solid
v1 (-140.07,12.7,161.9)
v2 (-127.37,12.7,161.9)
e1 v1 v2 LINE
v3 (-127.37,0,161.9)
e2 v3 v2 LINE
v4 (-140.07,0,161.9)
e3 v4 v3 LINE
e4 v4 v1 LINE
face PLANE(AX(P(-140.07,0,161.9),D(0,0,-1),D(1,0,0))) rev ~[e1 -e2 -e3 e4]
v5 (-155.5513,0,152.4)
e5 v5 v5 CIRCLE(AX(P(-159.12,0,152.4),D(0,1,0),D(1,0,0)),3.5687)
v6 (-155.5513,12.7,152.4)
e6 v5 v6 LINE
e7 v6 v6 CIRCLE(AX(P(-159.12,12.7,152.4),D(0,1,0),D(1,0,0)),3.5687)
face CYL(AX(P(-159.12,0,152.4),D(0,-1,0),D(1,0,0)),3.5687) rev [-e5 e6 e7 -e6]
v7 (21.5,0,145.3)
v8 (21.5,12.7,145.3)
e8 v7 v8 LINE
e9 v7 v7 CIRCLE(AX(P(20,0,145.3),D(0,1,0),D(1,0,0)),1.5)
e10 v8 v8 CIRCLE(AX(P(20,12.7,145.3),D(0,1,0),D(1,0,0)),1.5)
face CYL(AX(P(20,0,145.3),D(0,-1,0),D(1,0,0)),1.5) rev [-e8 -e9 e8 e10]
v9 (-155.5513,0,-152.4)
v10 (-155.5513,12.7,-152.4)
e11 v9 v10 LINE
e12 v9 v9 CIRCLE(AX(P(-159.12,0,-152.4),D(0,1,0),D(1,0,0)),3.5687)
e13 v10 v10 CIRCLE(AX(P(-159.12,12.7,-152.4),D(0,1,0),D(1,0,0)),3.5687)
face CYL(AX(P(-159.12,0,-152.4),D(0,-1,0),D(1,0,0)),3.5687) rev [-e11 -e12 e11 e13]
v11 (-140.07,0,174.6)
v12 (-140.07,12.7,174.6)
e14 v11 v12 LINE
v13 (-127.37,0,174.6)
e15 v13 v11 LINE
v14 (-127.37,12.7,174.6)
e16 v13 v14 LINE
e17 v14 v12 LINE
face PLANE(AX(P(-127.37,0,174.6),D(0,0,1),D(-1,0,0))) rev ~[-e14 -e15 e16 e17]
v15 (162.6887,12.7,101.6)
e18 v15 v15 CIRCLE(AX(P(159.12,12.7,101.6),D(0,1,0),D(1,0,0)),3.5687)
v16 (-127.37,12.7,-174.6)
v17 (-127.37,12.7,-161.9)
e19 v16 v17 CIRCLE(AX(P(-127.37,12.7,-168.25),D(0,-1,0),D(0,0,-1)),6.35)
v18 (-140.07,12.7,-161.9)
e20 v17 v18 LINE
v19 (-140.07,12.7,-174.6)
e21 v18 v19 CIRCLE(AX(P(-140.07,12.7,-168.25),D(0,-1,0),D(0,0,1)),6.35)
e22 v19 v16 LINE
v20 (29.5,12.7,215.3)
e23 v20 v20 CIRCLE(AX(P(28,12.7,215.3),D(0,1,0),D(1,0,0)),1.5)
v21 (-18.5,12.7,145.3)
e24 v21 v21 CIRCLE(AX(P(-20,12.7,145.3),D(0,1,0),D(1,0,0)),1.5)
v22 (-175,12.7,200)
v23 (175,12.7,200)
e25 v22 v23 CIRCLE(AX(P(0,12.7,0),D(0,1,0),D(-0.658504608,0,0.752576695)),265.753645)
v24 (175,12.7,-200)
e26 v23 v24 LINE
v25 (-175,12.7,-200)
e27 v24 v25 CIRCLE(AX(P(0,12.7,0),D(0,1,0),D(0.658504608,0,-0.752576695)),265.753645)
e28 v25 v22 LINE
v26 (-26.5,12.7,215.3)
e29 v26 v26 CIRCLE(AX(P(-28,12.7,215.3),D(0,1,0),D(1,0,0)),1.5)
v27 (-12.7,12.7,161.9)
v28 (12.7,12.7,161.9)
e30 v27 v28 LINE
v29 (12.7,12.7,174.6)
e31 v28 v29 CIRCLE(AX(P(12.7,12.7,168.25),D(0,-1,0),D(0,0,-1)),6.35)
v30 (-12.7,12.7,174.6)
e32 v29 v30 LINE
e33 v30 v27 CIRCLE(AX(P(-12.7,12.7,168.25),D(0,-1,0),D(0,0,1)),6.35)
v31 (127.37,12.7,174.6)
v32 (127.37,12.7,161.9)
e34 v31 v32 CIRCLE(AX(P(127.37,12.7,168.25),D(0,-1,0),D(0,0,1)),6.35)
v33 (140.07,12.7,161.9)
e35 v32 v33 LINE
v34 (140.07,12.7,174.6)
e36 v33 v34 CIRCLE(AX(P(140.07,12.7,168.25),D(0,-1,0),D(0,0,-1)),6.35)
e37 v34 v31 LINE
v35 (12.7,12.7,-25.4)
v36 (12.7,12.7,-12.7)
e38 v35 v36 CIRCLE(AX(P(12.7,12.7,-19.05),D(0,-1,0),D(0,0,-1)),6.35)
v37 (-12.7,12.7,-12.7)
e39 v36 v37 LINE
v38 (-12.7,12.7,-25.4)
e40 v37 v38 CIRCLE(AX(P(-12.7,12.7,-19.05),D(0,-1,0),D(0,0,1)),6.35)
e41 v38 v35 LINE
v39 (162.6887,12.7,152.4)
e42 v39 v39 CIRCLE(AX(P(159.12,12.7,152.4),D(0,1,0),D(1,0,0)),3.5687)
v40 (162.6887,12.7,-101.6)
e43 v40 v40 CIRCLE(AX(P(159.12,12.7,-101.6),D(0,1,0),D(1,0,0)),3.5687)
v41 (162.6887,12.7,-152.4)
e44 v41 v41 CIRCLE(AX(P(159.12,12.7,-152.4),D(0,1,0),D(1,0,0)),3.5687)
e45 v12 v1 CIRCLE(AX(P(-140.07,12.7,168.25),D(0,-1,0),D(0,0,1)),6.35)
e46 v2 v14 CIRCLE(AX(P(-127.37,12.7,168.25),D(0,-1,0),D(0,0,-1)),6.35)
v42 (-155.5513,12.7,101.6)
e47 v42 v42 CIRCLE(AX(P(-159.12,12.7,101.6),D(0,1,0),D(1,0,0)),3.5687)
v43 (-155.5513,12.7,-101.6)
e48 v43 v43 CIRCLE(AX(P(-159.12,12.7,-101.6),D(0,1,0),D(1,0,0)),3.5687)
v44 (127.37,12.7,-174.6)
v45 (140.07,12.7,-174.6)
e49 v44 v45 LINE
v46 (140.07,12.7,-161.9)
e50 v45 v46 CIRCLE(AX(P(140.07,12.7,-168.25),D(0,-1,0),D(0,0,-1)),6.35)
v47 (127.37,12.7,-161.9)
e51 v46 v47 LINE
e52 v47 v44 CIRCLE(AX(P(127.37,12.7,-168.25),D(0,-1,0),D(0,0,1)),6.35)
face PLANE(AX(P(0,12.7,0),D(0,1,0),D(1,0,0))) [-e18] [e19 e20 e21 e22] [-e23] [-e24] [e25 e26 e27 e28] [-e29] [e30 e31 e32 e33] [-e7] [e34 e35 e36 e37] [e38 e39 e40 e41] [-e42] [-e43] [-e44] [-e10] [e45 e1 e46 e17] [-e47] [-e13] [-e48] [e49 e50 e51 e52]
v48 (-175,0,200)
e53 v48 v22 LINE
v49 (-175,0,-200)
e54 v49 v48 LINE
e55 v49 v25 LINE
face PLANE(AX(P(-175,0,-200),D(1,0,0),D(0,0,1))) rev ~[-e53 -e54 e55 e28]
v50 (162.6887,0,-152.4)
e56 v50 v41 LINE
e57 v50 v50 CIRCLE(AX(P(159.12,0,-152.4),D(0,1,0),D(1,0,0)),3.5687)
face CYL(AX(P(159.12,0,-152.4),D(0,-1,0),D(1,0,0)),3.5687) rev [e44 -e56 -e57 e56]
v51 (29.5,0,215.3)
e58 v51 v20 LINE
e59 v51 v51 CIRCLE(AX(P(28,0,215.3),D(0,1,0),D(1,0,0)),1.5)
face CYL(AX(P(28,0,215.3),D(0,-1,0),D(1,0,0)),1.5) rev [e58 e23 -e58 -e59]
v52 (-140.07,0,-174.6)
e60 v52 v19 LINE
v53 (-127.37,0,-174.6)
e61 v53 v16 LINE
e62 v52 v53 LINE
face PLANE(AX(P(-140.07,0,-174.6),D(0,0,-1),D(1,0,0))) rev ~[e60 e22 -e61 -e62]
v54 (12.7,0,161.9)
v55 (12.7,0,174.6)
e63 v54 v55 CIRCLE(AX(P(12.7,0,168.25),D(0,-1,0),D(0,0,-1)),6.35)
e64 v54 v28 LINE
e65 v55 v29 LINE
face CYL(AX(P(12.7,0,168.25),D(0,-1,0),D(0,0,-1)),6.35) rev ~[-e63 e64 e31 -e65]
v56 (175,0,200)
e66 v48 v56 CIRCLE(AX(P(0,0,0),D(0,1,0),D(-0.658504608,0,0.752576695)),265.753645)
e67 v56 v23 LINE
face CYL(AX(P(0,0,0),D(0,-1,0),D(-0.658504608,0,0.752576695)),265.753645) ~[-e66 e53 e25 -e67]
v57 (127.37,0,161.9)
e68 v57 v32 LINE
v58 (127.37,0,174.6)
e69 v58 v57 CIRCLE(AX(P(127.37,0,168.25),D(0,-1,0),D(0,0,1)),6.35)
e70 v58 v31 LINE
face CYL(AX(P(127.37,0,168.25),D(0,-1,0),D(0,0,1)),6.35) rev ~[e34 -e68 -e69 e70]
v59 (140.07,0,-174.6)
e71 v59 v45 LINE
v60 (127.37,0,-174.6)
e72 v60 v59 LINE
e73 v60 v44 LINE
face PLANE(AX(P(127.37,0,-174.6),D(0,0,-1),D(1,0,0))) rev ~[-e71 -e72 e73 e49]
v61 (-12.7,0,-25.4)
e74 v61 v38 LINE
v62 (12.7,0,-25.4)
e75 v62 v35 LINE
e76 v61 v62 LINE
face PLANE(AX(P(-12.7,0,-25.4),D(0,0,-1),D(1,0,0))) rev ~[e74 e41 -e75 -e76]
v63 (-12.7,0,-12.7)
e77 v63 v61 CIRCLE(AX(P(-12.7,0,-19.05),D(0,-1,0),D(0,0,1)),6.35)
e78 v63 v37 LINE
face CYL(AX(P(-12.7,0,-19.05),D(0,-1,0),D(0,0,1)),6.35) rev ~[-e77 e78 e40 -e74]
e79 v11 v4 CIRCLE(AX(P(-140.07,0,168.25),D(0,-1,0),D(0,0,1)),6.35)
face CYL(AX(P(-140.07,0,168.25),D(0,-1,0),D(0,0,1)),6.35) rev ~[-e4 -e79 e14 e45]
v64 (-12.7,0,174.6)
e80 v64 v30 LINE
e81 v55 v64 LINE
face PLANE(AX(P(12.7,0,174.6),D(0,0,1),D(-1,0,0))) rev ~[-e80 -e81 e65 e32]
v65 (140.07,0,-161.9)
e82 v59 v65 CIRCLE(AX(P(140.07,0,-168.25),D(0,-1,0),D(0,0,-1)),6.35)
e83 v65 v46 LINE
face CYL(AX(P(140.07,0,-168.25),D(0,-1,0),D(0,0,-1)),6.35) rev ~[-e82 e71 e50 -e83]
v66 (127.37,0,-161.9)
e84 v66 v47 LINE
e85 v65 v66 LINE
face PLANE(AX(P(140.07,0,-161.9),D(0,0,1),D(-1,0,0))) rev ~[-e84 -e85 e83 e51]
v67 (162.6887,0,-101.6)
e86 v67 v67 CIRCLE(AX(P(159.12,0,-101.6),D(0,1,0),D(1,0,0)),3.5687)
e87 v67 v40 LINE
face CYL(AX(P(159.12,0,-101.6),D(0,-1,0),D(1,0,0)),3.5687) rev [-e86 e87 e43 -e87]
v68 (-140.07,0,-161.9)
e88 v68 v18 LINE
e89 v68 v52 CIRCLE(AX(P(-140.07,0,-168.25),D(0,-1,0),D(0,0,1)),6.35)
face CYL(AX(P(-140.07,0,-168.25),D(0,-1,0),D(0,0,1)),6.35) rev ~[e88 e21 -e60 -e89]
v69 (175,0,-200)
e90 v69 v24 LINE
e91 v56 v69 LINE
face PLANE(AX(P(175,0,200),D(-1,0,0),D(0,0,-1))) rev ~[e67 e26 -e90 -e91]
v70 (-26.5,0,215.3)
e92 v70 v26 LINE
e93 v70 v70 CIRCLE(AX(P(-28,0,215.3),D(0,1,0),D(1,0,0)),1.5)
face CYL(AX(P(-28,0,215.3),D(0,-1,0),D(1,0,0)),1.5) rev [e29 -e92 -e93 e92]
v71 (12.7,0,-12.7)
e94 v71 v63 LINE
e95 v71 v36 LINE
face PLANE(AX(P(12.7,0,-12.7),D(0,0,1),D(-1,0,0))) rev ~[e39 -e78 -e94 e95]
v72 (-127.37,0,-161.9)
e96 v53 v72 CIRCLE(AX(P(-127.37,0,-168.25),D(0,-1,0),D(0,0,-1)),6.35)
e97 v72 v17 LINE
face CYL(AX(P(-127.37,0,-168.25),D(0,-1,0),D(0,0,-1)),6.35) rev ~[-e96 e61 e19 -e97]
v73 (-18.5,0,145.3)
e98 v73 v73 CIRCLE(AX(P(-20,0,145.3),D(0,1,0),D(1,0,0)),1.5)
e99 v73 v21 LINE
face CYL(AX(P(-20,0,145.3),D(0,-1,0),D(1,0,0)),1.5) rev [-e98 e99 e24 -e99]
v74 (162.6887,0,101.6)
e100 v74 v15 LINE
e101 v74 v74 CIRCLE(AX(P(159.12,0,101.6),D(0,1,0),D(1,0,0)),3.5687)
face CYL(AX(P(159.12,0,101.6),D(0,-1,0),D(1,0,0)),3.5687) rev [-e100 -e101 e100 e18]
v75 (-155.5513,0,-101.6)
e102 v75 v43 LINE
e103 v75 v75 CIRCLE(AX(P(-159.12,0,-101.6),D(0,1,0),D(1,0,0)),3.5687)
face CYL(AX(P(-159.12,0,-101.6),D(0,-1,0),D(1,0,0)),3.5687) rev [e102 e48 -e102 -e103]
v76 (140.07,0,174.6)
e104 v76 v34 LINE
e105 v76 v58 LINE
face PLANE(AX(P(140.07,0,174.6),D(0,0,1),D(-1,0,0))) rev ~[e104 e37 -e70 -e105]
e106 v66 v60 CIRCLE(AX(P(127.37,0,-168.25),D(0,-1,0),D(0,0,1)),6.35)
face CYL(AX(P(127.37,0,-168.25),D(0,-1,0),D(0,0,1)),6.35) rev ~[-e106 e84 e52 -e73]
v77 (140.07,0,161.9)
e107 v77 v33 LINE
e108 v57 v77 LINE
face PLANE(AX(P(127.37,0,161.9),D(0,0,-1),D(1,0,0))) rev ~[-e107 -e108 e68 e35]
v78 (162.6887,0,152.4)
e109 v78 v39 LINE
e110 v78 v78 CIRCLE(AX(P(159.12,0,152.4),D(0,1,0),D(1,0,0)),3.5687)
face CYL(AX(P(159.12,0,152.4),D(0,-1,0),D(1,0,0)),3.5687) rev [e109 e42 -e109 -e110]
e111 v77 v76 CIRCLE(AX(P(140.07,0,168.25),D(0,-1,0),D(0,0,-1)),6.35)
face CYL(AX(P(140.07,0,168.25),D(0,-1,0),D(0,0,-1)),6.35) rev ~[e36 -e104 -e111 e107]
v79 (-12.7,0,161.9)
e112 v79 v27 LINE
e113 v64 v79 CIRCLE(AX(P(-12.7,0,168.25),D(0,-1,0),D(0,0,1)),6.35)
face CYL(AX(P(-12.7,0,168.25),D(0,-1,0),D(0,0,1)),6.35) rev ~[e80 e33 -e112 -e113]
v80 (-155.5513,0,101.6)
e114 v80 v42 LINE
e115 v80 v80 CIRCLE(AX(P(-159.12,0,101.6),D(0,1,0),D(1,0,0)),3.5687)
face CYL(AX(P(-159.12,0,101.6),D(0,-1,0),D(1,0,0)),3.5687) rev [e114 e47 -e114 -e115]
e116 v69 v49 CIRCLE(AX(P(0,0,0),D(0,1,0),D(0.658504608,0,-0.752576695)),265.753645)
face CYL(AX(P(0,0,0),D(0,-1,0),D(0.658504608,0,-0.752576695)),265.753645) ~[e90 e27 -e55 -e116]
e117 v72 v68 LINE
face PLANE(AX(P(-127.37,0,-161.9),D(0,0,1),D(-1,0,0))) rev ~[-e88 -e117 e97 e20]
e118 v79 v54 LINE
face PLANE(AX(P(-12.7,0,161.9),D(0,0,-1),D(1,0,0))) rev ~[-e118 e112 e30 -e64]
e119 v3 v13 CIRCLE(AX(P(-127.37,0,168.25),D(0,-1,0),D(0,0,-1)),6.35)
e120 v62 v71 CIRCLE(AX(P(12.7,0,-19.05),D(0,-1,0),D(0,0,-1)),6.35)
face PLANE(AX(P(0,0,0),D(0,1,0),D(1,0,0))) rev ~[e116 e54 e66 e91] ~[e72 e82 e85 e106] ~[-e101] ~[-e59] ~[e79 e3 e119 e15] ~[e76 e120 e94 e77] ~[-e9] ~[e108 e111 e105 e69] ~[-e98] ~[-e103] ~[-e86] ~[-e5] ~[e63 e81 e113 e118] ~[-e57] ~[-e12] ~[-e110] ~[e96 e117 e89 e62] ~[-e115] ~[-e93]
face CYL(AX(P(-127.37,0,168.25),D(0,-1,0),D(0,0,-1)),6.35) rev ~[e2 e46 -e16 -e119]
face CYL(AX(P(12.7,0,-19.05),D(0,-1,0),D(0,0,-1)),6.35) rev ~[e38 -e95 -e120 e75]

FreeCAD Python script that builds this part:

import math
import FreeCAD as App
import Part
import Sketcher
from FreeCAD import Vector
Q = App.Units.Quantity

doc = App.newDocument("Part")
params = doc.addObject("Spreadsheet::Sheet", "Params")
for row, (alias, value) in enumerate([
    ("sketch1_width", "1 in"),
    ("sketch1_radius", "0.25 in"),
    ("sketch1_diameter", "0.281 in"),
    ("sketch1_width2", "0.5 in"),
    ("pad1_length", "0.5 in"),
], start=1):
    params.set(f"A{row}", alias)
    params.set(f"B{row}", "=" + value)
    params.setAlias(f"B{row}", alias)

body = doc.addObject("PartDesign::Body", "Body")

# Sketch on XZ plane
sketch1 = body.newObject("Sketcher::SketchObject", "Sketch")
sketch1.AttachmentSupport = (doc.getObject("XZ_Plane"), [""])
sketch1.MapMode = "FlatFace"
sketch1.addGeometry([
    Part.LineSegment(Vector(175, 200, 0), Vector(175, -200, 0)),  # 0
    Part.ArcOfCircle(Part.Circle(Vector(0, 0, 0), Vector(0, 0, 1), 265.753645), math.radians(-131.185925), math.radians(-48.814075)),  # 1
    Part.LineSegment(Vector(-175, -200, 0), Vector(-175, 200, 0)),  # 2
    Part.ArcOfCircle(Part.Circle(Vector(0, 0, 0), Vector(0, 0, 1), 265.753645), math.radians(48.814075), math.radians(131.185925)),  # 3
    Part.ArcOfCircle(Part.Circle(Vector(-140.07, 168.25, 0), Vector(0, 0, 1), 6.35), math.radians(90), math.radians(270)),  # 4
    Part.LineSegment(Vector(-140.07, 161.9, 0), Vector(-127.37, 161.9, 0)),  # 5
    Part.ArcOfCircle(Part.Circle(Vector(-127.37, 168.25, 0), Vector(0, 0, 1), 6.35), math.radians(-90), math.radians(90)),  # 6
    Part.LineSegment(Vector(-127.37, 174.6, 0), Vector(-140.07, 174.6, 0)),  # 7
    Part.Circle(Vector(-159.12, 152.4, 0), Vector(0, 0, 1), 3.5687),  # 8
    Part.Circle(Vector(-28, 215.3, 0), Vector(0, 0, 1), 1.5),  # 9
    Part.Circle(Vector(-20, 145.3, 0), Vector(0, 0, 1), 1.5),  # 10
    Part.Circle(Vector(-159.12, 101.6, 0), Vector(0, 0, 1), 3.5687),  # 11
    Part.Circle(Vector(28, 215.3, 0), Vector(0, 0, 1), 1.5),  # 12
    Part.ArcOfCircle(Part.Circle(Vector(-12.7, 168.25, 0), Vector(0, 0, 1), 6.35), math.radians(90), math.radians(270)),  # 13
    Part.LineSegment(Vector(-12.7, 161.9, 0), Vector(12.7, 161.9, 0)),  # 14
    Part.ArcOfCircle(Part.Circle(Vector(12.7, 168.25, 0), Vector(0, 0, 1), 6.35), math.radians(-90), math.radians(90)),  # 15
    Part.LineSegment(Vector(12.7, 174.6, 0), Vector(-12.7, 174.6, 0)),  # 16
    Part.Circle(Vector(20, 145.3, 0), Vector(0, 0, 1), 1.5),  # 17
    Part.ArcOfCircle(Part.Circle(Vector(127.37, 168.25, 0), Vector(0, 0, 1), 6.35), math.radians(90), math.radians(270)),  # 18
    Part.LineSegment(Vector(127.37, 161.9, 0), Vector(140.07, 161.9, 0)),  # 19
    Part.ArcOfCircle(Part.Circle(Vector(140.07, 168.25, 0), Vector(0, 0, 1), 6.35), math.radians(-90), math.radians(90)),  # 20
    Part.LineSegment(Vector(140.07, 174.6, 0), Vector(127.37, 174.6, 0)),  # 21
    Part.Circle(Vector(159.12, 152.4, 0), Vector(0, 0, 1), 3.5687),  # 22
    Part.Circle(Vector(159.12, 101.6, 0), Vector(0, 0, 1), 3.5687),  # 23
    Part.Circle(Vector(-159.12, -101.6, 0), Vector(0, 0, 1), 3.5687),  # 24
    Part.Circle(Vector(-159.12, -152.4, 0), Vector(0, 0, 1), 3.5687),  # 25
    Part.ArcOfCircle(Part.Circle(Vector(-140.07, -168.25, 0), Vector(0, 0, 1), 6.35), math.radians(90), math.radians(270)),  # 26
    Part.LineSegment(Vector(-140.07, -174.6, 0), Vector(-127.37, -174.6, 0)),  # 27
    Part.ArcOfCircle(Part.Circle(Vector(-127.37, -168.25, 0), Vector(0, 0, 1), 6.35), math.radians(-90), math.radians(90)),  # 28
    Part.LineSegment(Vector(-127.37, -161.9, 0), Vector(-140.07, -161.9, 0)),  # 29
    Part.ArcOfCircle(Part.Circle(Vector(-12.7, -19.05, 0), Vector(0, 0, 1), 6.35), math.radians(90), math.radians(270)),  # 30
    Part.LineSegment(Vector(-12.7, -25.4, 0), Vector(12.7, -25.4, 0)),  # 31
    Part.ArcOfCircle(Part.Circle(Vector(12.7, -19.05, 0), Vector(0, 0, 1), 6.35), math.radians(-90), math.radians(90)),  # 32
    Part.LineSegment(Vector(12.7, -12.7, 0), Vector(-12.7, -12.7, 0)),  # 33
    Part.Circle(Vector(159.12, -101.6, 0), Vector(0, 0, 1), 3.5687),  # 34
    Part.ArcOfCircle(Part.Circle(Vector(127.37, -168.25, 0), Vector(0, 0, 1), 6.35), math.radians(90), math.radians(270)),  # 35
    Part.LineSegment(Vector(127.37, -174.6, 0), Vector(140.07, -174.6, 0)),  # 36
    Part.ArcOfCircle(Part.Circle(Vector(140.07, -168.25, 0), Vector(0, 0, 1), 6.35), math.radians(-90), math.radians(90)),  # 37
    Part.LineSegment(Vector(140.07, -161.9, 0), Vector(127.37, -161.9, 0)),  # 38
    Part.Circle(Vector(159.12, -152.4, 0), Vector(0, 0, 1), 3.5687),  # 39
], False)
sketch1.addConstraint([
    Sketcher.Constraint("Coincident", 0, 2, 1, 2),
    Sketcher.Constraint("Coincident", 1, 1, 2, 1),
    Sketcher.Constraint("Coincident", 2, 2, 3, 2),
    Sketcher.Constraint("Coincident", 3, 1, 0, 1),
    Sketcher.Constraint("Tangent", 4, 2, 5, 1),
    Sketcher.Constraint("Tangent", 5, 2, 6, 1),
    Sketcher.Constraint("Tangent", 6, 2, 7, 1),
    Sketcher.Constraint("Tangent", 7, 2, 4, 1),
    Sketcher.Constraint("Tangent", 13, 2, 14, 1),
    Sketcher.Constraint("Tangent", 14, 2, 15, 1),
    Sketcher.Constraint("Tangent", 15, 2, 16, 1),
    Sketcher.Constraint("Tangent", 16, 2, 13, 1),
    Sketcher.Constraint("Tangent", 18, 2, 19, 1),
    Sketcher.Constraint("Tangent", 19, 2, 20, 1),
    Sketcher.Constraint("Tangent", 20, 2, 21, 1),
    Sketcher.Constraint("Tangent", 21, 2, 18, 1),
    Sketcher.Constraint("Tangent", 26, 2, 27, 1),
    Sketcher.Constraint("Tangent", 27, 2, 28, 1),
    Sketcher.Constraint("Tangent", 28, 2, 29, 1),
    Sketcher.Constraint("Tangent", 29, 2, 26, 1),
    Sketcher.Constraint("Tangent", 30, 2, 31, 1),
    Sketcher.Constraint("Tangent", 31, 2, 32, 1),
    Sketcher.Constraint("Tangent", 32, 2, 33, 1),
    Sketcher.Constraint("Tangent", 33, 2, 30, 1),
    Sketcher.Constraint("Tangent", 35, 2, 36, 1),
    Sketcher.Constraint("Tangent", 36, 2, 37, 1),
    Sketcher.Constraint("Tangent", 37, 2, 38, 1),
    Sketcher.Constraint("Tangent", 38, 2, 35, 1),
    Sketcher.Constraint("Vertical", 0),
    Sketcher.Constraint("Vertical", 2),
    Sketcher.Constraint("Horizontal", 5),
    Sketcher.Constraint("Horizontal", 7),
    Sketcher.Constraint("Horizontal", 14),
    Sketcher.Constraint("Horizontal", 16),
    Sketcher.Constraint("Horizontal", 19),
    Sketcher.Constraint("Horizontal", 21),
    Sketcher.Constraint("Horizontal", 27),
    Sketcher.Constraint("Horizontal", 29),
    Sketcher.Constraint("Horizontal", 31),
    Sketcher.Constraint("Horizontal", 33),
    Sketcher.Constraint("Horizontal", 36),
    Sketcher.Constraint("Horizontal", 38),
    Sketcher.Constraint("Coincident", 1, 3, -1, 1),
    Sketcher.Constraint("Coincident", 3, 3, -1, 1),
    Sketcher.Constraint("Equal", 1, 3),
    Sketcher.Constraint("Equal", 9, 10),
    Sketcher.Constraint("Equal", 8, 11),
    Sketcher.Constraint("Equal", 10, 12),
    Sketcher.Constraint("Equal", 6, 13),
    Sketcher.Constraint("Equal", 12, 17),
    Sketcher.Constraint("Equal", 15, 18),
    Sketcher.Constraint("Equal", 11, 22),
    Sketcher.Constraint("Equal", 22, 23),
    Sketcher.Constraint("Equal", 23, 24),
    Sketcher.Constraint("Equal", 24, 25),
    Sketcher.Constraint("Equal", 20, 26),
    Sketcher.Constraint("Equal", 28, 30),
    Sketcher.Constraint("Equal", 25, 34),
    Sketcher.Constraint("Equal", 32, 35),
    Sketcher.Constraint("Equal", 34, 39),
    Sketcher.Constraint("Symmetric", 23, 3, 24, 3, -1, 1),
    Sketcher.Constraint("Symmetric", 22, 3, 25, 3, -1, 1),
    Sketcher.Constraint("Symmetric", 20, 3, 26, 3, -1, 1),
    Sketcher.Constraint("Symmetric", 11, 3, 34, 3, -1, 1),
    Sketcher.Constraint("Symmetric", 6, 3, 35, 3, -1, 1),
    Sketcher.Constraint("Symmetric", 8, 3, 39, 3, -1, 1),
    Sketcher.Constraint("Symmetric", 9, 3, 12, 3, -2),
    Sketcher.Constraint("Symmetric", 10, 3, 17, 3, -2),
    Sketcher.Constraint("Symmetric", 6, 3, 18, 3, -2),
    Sketcher.Constraint("Symmetric", 8, 3, 22, 3, -2),
    Sketcher.Constraint("Symmetric", 11, 3, 23, 3, -2),
    Sketcher.Constraint("Horizontal", 6, 3, 13, 3),
    Sketcher.Constraint("Horizontal", 0, 2, 1, 1),
    Sketcher.Constraint("Vertical", 8, 3, 11, 3),
    Sketcher.Constraint("Vertical", 4, 3, 26, 3),
    Sketcher.Constraint("Vertical", 6, 3, 28, 3),
    Sketcher.Constraint("Vertical", 13, 3, 30, 3),
    Sketcher.Constraint("Vertical", 15, 3, 32, 3),
    Sketcher.Constraint("Vertical", 20, 3, 37, 3),
    Sketcher.Constraint("DistanceX", 14, 1, 14, 2, Q("1 in")),
    Sketcher.Constraint("Radius", 4, Q("0.25 in")),
    Sketcher.Constraint("Diameter", 8, Q("0.281 in")),
    Sketcher.Constraint("DistanceX", 5, 1, 5, 2, Q("0.5 in")),
    Sketcher.Constraint("DistanceY", -1, 1, 8, 3, Q("6 in")),
    Sketcher.Constraint("DistanceY", -1, 1, 11, 3, Q("4 in")),
    Sketcher.Constraint("DistanceY", 30, 2, -1, 1, Q("1 in")),
    Sketcher.Constraint("DistanceY", 1, 1, 26, 2, Q("1 in")),
    Sketcher.Constraint("DistanceX", 13, 3, -1, 1, Q("0.5 in")),
    Sketcher.Constraint("Diameter", 9, Q("3 mm")),
    Sketcher.Constraint("DistanceX", 8, 3, 4, 3, Q("0.75 in")),
    Sketcher.Constraint("DistanceY", 0, 2, 0, 1, Q("400 mm")),
    Sketcher.Constraint("Radius", 1, Q("265.753645 mm")),
    Sketcher.Constraint("DistanceX", 4, 3, -1, 1, Q("140.07 mm")),
    Sketcher.Constraint("DistanceX", 9, 3, -1, 1, Q("28 mm")),
    Sketcher.Constraint("DistanceY", -1, 1, 9, 3, Q("215.3 mm")),
    Sketcher.Constraint("DistanceX", 10, 3, -1, 1, Q("20 mm")),
    Sketcher.Constraint("DistanceY", -1, 1, 10, 3, Q("145.3 mm")),
])
sketch1.setExpression("Constraints[79]", "Params.sketch1_width")
sketch1.setExpression("Constraints[80]", "Params.sketch1_radius")
sketch1.setExpression("Constraints[81]", "Params.sketch1_diameter")
sketch1.setExpression("Constraints[82]", "Params.sketch1_width2")
pad1 = body.newObject("PartDesign::Pad", "Pad")
pad1.Profile = sketch1
pad1.setExpression("Length", "Params.pad1_length")
pad1.Reversed = True

doc.recompute()
